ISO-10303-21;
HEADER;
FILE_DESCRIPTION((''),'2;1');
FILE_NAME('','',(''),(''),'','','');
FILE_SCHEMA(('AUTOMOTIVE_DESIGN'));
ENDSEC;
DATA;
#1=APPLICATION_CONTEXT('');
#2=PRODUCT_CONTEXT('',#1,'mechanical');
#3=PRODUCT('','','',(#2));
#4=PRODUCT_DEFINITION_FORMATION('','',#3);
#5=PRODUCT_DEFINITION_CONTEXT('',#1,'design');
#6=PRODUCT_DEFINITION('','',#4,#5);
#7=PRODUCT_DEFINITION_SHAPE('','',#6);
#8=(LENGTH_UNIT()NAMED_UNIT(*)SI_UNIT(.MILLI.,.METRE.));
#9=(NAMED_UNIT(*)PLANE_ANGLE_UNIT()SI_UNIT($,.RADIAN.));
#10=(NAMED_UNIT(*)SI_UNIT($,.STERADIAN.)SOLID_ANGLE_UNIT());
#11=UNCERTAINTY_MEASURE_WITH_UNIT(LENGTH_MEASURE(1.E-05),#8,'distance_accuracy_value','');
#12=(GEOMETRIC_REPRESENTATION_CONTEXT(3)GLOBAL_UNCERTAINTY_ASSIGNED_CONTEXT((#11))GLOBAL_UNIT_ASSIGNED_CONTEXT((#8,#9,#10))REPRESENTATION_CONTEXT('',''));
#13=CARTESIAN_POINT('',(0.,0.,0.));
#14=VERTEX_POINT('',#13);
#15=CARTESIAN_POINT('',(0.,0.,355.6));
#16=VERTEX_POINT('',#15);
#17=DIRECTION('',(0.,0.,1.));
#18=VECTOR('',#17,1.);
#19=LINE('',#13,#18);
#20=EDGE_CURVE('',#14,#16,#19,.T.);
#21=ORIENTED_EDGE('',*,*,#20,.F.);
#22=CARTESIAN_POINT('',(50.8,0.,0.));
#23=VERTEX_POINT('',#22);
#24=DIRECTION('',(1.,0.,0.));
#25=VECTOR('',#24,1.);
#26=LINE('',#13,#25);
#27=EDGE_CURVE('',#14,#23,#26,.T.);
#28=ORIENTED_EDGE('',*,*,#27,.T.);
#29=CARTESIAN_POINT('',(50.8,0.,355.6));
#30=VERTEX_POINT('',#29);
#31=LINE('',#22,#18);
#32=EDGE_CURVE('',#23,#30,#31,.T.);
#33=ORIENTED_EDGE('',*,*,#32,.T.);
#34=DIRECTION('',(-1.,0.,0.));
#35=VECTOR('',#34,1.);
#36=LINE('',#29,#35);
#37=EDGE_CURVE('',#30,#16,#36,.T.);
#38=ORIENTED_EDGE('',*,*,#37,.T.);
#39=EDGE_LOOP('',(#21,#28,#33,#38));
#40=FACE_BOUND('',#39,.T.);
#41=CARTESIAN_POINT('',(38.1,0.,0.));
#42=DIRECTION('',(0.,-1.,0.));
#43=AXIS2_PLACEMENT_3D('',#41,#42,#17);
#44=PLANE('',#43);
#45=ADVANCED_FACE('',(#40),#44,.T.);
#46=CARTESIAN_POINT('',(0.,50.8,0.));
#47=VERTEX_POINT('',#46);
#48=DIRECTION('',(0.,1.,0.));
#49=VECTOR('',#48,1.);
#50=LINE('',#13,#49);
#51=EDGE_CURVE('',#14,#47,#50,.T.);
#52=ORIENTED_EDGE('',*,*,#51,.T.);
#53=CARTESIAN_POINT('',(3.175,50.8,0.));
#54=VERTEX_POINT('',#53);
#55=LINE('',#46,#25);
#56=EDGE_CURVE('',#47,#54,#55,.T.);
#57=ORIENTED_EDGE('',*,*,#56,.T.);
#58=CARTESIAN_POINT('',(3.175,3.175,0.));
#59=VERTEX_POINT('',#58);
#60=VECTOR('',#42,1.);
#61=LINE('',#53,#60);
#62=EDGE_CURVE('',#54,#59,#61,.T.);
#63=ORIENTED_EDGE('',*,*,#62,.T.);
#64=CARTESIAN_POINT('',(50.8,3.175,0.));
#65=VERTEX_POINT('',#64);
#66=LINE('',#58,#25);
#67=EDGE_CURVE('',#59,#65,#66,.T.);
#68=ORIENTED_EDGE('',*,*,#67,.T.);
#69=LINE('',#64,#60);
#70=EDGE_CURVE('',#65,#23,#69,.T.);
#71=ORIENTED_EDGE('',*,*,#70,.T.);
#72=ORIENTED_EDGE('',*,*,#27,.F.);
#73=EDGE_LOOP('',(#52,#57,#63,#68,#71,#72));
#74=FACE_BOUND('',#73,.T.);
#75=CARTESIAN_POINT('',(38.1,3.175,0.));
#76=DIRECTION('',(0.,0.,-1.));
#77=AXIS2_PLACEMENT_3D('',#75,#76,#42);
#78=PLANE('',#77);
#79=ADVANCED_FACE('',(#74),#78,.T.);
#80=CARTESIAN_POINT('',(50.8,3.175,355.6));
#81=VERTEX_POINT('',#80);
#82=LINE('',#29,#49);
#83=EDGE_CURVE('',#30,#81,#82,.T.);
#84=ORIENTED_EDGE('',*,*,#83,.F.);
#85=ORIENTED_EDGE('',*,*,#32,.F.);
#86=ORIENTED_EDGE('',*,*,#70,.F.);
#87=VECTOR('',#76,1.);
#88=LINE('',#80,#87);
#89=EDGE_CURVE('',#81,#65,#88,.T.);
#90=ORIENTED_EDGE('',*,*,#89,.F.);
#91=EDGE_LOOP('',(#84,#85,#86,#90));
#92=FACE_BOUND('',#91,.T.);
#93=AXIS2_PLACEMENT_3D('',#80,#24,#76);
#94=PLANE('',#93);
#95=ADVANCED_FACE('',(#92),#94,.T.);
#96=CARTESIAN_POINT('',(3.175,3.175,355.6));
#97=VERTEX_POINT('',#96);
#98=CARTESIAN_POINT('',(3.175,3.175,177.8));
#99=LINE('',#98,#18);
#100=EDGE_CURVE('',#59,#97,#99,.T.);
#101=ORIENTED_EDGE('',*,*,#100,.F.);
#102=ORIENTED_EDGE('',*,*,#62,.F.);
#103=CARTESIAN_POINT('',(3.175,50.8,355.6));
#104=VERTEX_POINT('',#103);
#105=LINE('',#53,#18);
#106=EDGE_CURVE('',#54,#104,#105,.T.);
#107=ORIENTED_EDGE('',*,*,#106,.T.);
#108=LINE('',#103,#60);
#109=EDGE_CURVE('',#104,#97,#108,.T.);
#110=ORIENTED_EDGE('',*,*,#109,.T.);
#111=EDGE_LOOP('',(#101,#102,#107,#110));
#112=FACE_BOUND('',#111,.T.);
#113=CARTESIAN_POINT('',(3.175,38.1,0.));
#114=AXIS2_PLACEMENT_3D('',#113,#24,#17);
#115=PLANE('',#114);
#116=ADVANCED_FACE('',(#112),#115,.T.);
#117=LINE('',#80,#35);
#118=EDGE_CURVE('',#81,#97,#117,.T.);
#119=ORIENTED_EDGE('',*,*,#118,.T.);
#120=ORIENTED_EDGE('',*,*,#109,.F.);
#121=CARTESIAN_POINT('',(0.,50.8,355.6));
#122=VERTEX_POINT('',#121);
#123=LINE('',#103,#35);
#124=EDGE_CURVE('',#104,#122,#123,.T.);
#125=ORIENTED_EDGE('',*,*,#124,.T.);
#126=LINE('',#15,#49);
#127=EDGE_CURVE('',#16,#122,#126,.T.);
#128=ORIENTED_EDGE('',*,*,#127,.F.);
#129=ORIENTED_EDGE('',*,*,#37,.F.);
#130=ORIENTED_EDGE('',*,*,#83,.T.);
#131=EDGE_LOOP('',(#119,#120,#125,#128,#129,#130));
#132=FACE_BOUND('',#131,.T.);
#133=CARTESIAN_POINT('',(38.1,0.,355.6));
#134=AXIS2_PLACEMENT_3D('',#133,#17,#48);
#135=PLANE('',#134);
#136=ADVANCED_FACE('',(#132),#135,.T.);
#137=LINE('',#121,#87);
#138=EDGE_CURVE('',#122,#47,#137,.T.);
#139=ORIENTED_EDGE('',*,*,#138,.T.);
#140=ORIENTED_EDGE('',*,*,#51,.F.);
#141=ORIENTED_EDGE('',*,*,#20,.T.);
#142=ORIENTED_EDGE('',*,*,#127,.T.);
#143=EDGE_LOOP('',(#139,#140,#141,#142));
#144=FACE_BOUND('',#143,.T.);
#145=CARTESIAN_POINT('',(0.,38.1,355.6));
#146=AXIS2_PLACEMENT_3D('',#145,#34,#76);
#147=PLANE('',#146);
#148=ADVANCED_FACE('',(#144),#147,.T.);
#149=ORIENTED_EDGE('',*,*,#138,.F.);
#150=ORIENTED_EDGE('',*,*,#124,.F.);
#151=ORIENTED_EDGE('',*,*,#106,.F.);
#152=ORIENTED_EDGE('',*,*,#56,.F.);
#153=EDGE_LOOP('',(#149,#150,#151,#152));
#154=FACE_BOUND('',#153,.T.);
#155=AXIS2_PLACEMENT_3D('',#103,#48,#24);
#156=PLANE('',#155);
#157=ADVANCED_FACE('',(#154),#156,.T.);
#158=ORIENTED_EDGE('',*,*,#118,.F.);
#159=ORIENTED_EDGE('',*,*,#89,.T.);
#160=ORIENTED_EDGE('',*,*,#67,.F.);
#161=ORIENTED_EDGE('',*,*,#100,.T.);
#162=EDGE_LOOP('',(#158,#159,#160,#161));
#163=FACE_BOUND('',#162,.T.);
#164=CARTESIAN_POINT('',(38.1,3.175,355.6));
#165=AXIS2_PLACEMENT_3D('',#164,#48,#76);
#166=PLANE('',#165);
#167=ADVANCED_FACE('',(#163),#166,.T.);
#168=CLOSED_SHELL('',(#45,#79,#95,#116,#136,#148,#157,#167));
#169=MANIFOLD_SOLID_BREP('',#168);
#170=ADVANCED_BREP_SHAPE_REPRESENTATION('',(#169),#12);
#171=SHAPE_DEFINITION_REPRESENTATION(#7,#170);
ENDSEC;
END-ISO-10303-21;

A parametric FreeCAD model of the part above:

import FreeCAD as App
import Part
import Sketcher

V = App.Vector
Q = App.Units.Quantity


def add_polygon(sketch, points):
    """Adds a closed chain of lines whose ends are joined by coincident constraints."""
    first, n = sketch.GeometryCount, len(points)
    for a, b in zip(points, points[1:] + points[:1]):
        sketch.addGeometry(Part.LineSegment(App.Vector(*a, 0), App.Vector(*b, 0)), False)
    for i in range(n):
        sketch.addConstraint(Sketcher.Constraint("Coincident", first + i, 2, first + (i + 1) % n, 1))

doc = App.newDocument("Part")
body = doc.addObject("PartDesign::Body", "Body")

# Sketch on XY plane
sketch1 = body.newObject("Sketcher::SketchObject", "Sketch")
sketch1.AttachmentSupport = (doc.getObject("XY_Plane"), [""])
sketch1.MapMode = "FlatFace"
add_polygon(sketch1, [(0, 3.2), (0, 0), (38.1, 0), (38.1, 3.2)])  # lines 0-3
sketch1.addConstraint([
    Sketcher.Constraint("Vertical", 0),
    Sketcher.Constraint("Horizontal", 1),
    Sketcher.Constraint("Vertical", 2),
    Sketcher.Constraint("Horizontal", 3),
    Sketcher.Constraint("Coincident", 0, 2, -1, 1),
    Sketcher.Constraint("DistanceX", 1, 1, 1, 2, Q("1.5 in")),
    Sketcher.Constraint("DistanceY", 0, 2, 0, 1, Q("0.125 in")),
])
pad1 = body.newObject("PartDesign::Pad", "Pad")
pad1.Profile = sketch1
pad1.Length = Q("14 in")

# Sketch on XY plane
sketch2 = body.newObject("Sketcher::SketchObject", "Sketch001")
sketch2.AttachmentSupport = (doc.getObject("XY_Plane"), [""])
sketch2.MapMode = "FlatFace"
sketch2.AttachmentOffset = App.Placement(V(0, 0, 14 * 25.4), App.Rotation())
add_polygon(sketch2, [(0, 38.1), (0, 0), (3.2, 0), (3.2, 38.1)])  # lines 0-3
sketch2.addConstraint([
    Sketcher.Constraint("Vertical", 0),
    Sketcher.Constraint("Horizontal", 1),
    Sketcher.Constraint("Vertical", 2),
    Sketcher.Constraint("Horizontal", 3),
    Sketcher.Constraint("Coincident", 0, 2, -1, 1),
    Sketcher.Constraint("DistanceY", 0, 2, 0, 1, Q("1.5 in")),
    Sketcher.Constraint("DistanceX", 1, 1, 1, 2, Q("0.125 in")),
])
pad2 = body.newObject("PartDesign::Pad", "Pad001")
pad2.Profile = sketch2
pad2.Length = Q("14 in")
pad2.Reversed = True

# Sketch on XZ plane
sketch3 = body.newObject("Sketcher::SketchObject", "Sketch002")
sketch3.AttachmentSupport = (doc.getObject("XZ_Plane"), [""])
sketch3.MapMode = "FlatFace"
sketch3.AttachmentOffset = App.Placement(V(0, 0, -1.5 * 25.4), App.Rotation())
add_polygon(sketch3, [(3.2, 0), (0, 0), (0, 355.6), (3.2, 355.6)])  # lines 0-3
sketch3.addConstraint([
    Sketcher.Constraint("Horizontal", 0),
    Sketcher.Constraint("Vertical", 1),
    Sketcher.Constraint("Horizontal", 2),
    Sketcher.Constraint("Vertical", 3),
    Sketcher.Constraint("Coincident", 0, 2, -1, 1),
    Sketcher.Constraint("DistanceY", 1, 1, 1, 2, Q("14 in")),
    Sketcher.Constraint("DistanceX", 0, 2, 0, 1, Q("0.125 in")),
])
pad3 = body.newObject("PartDesign::Pad", "Pad002")
pad3.Profile = sketch3
pad3.Length = Q("0.5 in")
pad3.Reversed = True

# Sketch on YZ plane
sketch4 = body.newObject("Sketcher::SketchObject", "Sketch003")
sketch4.AttachmentSupport = (doc.getObject("YZ_Plane"), [""])
sketch4.MapMode = "FlatFace"
sketch4.AttachmentOffset = App.Placement(V(0, 0, 1.5 * 25.4), App.Rotation())
add_polygon(sketch4, [(0, 355.6), (0, 0), (3.2, 0), (3.2, 355.6)])  # lines 0-3
sketch4.addConstraint([
    Sketcher.Constraint("Vertical", 0),
    Sketcher.Constraint("Horizontal", 1),
    Sketcher.Constraint("Vertical", 2),
    Sketcher.Constraint("Horizontal", 3),
    Sketcher.Constraint("Coincident", 0, 2, -1, 1),
    Sketcher.Constraint("DistanceY", 0, 2, 0, 1, Q("14 in")),
    Sketcher.Constraint("DistanceX", 1, 1, 1, 2, Q("0.125 in")),
])
pad4 = body.newObject("PartDesign::Pad", "Pad003")
pad4.Profile = sketch4
pad4.Length = Q("0.5 in")

doc.recompute()
